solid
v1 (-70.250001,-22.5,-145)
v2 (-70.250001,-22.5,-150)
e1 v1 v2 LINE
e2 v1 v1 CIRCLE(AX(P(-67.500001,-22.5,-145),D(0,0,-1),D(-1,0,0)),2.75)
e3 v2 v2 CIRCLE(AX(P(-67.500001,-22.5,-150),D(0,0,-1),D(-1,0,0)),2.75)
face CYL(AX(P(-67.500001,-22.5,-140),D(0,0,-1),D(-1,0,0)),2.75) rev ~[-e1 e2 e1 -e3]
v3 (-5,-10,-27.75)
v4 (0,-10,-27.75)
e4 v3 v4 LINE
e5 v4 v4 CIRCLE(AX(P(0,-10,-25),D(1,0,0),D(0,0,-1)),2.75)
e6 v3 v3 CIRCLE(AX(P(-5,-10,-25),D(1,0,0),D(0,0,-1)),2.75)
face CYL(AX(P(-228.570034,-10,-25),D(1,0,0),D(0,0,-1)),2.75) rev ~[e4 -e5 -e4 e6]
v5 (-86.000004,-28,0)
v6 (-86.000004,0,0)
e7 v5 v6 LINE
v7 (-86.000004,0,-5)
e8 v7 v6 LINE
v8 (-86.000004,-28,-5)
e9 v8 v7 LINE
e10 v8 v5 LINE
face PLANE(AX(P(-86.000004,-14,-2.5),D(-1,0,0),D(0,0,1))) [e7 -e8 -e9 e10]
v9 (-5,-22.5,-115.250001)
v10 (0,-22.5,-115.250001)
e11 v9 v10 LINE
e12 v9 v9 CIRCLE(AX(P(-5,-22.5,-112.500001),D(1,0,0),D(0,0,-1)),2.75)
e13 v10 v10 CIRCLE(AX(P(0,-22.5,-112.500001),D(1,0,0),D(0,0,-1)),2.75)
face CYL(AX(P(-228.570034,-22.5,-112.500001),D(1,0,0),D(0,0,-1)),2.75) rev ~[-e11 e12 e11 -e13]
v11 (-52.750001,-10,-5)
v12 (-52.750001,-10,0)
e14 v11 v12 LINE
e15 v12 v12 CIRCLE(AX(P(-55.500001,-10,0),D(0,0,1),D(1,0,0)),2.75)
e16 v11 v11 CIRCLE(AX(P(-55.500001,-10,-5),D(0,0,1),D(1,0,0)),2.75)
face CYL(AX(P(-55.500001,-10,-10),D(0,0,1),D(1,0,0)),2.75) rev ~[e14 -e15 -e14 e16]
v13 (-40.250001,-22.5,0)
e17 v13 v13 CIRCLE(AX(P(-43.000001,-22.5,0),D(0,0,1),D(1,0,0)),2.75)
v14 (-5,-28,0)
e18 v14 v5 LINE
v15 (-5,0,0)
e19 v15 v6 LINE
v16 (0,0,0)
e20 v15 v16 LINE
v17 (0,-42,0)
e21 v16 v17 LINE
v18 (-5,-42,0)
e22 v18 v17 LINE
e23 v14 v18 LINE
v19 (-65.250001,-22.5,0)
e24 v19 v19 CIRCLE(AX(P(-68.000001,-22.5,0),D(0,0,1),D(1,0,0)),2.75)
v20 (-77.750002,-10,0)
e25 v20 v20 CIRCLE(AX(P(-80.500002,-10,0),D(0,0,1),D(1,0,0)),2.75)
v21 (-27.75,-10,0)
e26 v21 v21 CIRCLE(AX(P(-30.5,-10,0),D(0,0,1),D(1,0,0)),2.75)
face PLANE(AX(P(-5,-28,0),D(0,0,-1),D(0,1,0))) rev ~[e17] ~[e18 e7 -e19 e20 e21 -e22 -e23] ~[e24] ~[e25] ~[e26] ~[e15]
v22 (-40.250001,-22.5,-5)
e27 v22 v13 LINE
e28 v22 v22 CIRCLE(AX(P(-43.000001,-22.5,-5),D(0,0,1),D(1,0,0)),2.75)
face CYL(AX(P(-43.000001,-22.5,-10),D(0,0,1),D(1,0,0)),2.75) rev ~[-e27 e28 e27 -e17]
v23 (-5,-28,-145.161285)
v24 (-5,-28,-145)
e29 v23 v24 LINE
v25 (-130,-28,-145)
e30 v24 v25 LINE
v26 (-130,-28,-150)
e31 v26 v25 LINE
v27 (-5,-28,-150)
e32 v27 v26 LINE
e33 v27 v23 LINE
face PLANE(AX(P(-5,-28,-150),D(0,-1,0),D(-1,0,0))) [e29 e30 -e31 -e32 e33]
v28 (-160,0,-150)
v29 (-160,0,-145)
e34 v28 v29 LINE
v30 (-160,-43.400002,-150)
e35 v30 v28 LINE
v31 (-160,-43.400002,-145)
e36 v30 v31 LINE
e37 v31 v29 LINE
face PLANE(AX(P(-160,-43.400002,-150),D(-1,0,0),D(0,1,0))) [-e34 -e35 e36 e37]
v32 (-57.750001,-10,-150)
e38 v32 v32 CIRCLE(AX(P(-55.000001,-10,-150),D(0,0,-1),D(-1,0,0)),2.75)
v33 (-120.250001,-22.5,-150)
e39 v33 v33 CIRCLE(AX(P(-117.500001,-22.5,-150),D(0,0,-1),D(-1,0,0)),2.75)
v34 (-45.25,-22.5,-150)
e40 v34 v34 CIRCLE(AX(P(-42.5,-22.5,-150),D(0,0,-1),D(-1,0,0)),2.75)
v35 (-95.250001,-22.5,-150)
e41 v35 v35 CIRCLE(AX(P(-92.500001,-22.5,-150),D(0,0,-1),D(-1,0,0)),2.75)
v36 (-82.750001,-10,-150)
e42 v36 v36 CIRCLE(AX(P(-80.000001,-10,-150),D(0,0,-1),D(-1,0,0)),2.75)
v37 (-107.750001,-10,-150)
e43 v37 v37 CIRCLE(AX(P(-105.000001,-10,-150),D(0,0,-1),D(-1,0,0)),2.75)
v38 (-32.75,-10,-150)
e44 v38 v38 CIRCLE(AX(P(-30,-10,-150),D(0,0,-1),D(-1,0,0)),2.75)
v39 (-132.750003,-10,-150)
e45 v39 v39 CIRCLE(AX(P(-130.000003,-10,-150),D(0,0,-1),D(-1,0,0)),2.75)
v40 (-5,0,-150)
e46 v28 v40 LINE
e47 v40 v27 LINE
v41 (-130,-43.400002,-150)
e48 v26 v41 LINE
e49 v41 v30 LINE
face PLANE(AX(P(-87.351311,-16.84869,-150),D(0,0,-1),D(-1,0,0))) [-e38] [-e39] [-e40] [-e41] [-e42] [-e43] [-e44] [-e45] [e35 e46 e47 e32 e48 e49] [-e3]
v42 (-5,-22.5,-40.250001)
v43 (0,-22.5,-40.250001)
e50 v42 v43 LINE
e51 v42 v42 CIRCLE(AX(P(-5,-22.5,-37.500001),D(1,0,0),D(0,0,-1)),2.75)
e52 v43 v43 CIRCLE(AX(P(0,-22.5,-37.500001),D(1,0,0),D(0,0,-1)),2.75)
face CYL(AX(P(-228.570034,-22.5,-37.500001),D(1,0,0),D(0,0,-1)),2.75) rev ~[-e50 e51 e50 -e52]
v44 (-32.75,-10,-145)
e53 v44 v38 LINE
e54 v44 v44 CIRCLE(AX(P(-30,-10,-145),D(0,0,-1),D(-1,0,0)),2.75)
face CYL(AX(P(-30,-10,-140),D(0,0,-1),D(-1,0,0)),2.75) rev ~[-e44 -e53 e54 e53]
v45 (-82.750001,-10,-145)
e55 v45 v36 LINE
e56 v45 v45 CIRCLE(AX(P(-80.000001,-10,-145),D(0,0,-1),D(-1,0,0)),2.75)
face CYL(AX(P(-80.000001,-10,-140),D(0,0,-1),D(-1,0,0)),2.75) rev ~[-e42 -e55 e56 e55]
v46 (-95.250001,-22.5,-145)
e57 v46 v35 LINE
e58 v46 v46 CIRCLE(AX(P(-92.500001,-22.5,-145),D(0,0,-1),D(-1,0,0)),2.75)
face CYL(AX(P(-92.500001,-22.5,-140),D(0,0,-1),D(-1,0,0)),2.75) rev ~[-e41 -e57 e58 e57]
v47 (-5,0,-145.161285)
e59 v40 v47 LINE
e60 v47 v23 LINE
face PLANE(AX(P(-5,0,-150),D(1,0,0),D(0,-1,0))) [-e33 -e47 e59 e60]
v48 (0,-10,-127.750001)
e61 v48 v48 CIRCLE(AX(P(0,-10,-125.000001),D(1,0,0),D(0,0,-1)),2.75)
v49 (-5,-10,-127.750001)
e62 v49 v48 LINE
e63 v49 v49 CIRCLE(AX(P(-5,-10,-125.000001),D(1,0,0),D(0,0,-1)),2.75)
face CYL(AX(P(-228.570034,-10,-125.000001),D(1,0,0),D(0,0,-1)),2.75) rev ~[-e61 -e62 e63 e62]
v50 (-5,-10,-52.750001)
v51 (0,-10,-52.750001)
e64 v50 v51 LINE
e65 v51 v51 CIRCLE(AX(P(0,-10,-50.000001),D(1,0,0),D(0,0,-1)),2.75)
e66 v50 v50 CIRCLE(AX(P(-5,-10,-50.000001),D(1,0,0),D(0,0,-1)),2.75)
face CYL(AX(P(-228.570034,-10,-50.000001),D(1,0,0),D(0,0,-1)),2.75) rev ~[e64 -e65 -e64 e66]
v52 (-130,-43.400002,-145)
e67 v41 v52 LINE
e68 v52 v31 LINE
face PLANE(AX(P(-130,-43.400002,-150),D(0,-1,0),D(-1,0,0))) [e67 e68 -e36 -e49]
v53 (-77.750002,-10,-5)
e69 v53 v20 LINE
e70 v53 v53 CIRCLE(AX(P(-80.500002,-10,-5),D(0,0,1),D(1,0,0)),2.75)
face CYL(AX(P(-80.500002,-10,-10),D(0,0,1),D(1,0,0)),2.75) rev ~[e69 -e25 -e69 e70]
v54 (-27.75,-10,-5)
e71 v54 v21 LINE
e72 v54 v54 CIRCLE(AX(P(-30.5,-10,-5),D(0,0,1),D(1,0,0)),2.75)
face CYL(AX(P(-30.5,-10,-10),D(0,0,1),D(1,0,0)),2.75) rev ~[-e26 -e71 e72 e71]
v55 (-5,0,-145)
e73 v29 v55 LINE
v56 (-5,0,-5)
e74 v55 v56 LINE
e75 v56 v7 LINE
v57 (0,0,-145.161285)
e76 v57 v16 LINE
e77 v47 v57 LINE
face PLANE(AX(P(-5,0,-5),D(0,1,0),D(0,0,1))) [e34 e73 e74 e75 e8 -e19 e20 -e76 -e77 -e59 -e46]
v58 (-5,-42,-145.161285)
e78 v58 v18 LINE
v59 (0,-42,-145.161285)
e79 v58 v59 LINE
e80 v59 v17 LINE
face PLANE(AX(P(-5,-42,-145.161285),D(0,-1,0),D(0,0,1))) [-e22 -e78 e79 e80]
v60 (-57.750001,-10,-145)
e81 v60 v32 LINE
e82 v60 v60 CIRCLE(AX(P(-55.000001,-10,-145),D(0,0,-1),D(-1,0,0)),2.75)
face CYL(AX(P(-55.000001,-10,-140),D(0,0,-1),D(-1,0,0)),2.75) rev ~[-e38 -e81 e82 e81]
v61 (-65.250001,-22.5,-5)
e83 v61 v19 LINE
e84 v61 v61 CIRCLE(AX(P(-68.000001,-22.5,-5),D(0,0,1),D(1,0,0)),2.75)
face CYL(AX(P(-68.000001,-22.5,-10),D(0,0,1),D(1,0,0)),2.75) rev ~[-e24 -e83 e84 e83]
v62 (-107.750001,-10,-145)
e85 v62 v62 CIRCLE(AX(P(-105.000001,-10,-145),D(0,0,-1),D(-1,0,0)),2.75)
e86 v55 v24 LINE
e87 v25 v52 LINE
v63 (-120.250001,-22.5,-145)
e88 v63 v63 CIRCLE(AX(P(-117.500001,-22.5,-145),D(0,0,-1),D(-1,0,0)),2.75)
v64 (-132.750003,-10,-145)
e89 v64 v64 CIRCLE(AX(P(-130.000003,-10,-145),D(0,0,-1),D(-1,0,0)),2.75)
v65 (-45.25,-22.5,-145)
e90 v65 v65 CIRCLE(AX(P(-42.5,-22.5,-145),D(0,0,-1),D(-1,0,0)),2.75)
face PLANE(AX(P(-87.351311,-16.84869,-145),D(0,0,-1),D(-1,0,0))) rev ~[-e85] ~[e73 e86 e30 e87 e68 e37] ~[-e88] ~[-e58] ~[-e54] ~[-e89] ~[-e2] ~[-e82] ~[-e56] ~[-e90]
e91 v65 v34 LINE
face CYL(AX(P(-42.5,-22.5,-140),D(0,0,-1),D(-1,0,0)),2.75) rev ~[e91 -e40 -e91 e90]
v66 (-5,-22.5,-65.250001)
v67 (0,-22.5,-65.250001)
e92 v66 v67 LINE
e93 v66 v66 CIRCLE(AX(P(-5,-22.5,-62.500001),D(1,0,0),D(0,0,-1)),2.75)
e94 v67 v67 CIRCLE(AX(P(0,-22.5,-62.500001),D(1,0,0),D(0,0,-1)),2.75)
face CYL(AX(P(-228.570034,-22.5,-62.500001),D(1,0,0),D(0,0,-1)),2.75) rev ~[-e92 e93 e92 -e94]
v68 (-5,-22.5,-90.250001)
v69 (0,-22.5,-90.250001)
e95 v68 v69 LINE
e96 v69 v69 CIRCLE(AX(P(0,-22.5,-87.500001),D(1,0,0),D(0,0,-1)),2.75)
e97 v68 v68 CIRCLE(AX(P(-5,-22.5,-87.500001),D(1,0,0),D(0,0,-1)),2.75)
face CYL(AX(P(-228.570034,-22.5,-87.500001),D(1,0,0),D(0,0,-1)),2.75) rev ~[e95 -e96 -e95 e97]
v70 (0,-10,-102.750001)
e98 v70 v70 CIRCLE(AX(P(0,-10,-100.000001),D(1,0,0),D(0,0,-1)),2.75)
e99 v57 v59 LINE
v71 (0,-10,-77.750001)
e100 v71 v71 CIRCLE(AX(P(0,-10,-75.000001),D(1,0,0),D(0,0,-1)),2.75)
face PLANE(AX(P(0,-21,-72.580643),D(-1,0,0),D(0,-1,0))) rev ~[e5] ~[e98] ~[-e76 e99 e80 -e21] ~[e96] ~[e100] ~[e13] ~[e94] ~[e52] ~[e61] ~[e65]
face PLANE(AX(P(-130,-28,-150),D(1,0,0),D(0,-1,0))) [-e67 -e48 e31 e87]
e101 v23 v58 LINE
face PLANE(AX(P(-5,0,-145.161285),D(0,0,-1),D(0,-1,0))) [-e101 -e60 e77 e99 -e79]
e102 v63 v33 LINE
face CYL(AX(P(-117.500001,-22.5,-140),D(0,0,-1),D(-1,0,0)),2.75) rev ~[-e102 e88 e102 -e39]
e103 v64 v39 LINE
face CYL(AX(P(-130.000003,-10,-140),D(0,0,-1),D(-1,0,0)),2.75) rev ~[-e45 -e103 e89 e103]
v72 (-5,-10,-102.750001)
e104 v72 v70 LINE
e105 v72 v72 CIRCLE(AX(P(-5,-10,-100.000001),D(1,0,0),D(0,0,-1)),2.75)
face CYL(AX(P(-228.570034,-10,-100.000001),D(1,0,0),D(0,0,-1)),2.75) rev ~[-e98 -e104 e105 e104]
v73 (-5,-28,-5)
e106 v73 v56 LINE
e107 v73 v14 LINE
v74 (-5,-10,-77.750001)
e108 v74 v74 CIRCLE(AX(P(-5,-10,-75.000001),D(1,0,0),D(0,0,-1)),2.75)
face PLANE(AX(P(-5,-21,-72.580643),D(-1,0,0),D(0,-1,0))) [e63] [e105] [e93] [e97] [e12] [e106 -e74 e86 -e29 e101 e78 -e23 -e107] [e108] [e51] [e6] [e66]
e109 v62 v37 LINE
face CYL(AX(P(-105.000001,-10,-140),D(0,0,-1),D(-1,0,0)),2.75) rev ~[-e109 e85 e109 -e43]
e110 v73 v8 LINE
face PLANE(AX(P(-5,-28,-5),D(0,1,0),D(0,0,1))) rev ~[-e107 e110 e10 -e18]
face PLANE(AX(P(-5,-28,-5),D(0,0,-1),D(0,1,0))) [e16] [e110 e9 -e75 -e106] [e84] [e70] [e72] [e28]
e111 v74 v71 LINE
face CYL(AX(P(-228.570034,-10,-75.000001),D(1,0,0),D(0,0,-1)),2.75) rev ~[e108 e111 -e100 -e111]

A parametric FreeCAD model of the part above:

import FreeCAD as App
import Part
import Sketcher

V = App.Vector


def add_polygon(sketch, points):
    """Adds a closed chain of lines whose ends are joined by coincident constraints."""
    first, n = sketch.GeometryCount, len(points)
    for a, b in zip(points, points[1:] + points[:1]):
        sketch.addGeometry(Part.LineSegment(App.Vector(*a, 0), App.Vector(*b, 0)), False)
    for i in range(n):
        sketch.addConstraint(Sketcher.Constraint("Coincident", first + i, 2, first + (i + 1) % n, 1))

doc = App.newDocument("Part")
body = doc.addObject("PartDesign::Body", "Body")

# Sketch on YZ plane
sketch1 = body.newObject("Sketcher::SketchObject", "Sketch")
sketch1.AttachmentSupport = (doc.getObject("YZ_Plane"), [""])
sketch1.MapMode = "FlatFace"
sketch1.AttachmentOffset = App.Placement(V(0, 0, -5), App.Rotation())
add_polygon(sketch1, [(0, 0), (0, -145), (-42, -145), (-42, 0)])  # lines 0-3
sketch1.addConstraint([
    Sketcher.Constraint("Vertical", 0),
    Sketcher.Constraint("Horizontal", 1),
    Sketcher.Constraint("Vertical", 2),
    Sketcher.Constraint("Horizontal", 3),
    Sketcher.Constraint("Coincident", 3, 2, -1, 1),
    Sketcher.Constraint("DistanceX", 1, 2, 1, 1, 42.0),
    Sketcher.Constraint("DistanceY", 0, 2, 0, 1, 145.161285),
])
pad1 = body.newObject("PartDesign::Pad", "Pad")
pad1.Profile = sketch1
pad1.Length = 5

# Sketch on XY plane
sketch2 = body.newObject("Sketcher::SketchObject", "Sketch001")
sketch2.AttachmentSupport = (doc.getObject("XY_Plane"), [""])
sketch2.MapMode = "FlatFace"
sketch2.AttachmentOffset = App.Placement(V(0, 0, -150), App.Rotation())
add_polygon(sketch2, [(-130, -43), (-160, -43), (-160, 0), (-5, 0), (-5, -28), (-130, -28)])  # lines 0-5
sketch2.addConstraint([
    Sketcher.Constraint("Horizontal", 0),
    Sketcher.Constraint("Vertical", 1),
    Sketcher.Constraint("Horizontal", 2),
    Sketcher.Constraint("Vertical", 3),
    Sketcher.Constraint("Horizontal", 4),
    Sketcher.Constraint("Vertical", 5),
    Sketcher.Constraint("PointOnObject", 1, 2, -1),
    Sketcher.Constraint("DistanceX", 0, 2, 0, 1, 30.0),
    Sketcher.Constraint("DistanceX", 2, 1, 2, 2, 155.0),
    Sketcher.Constraint("DistanceY", 3, 2, 3, 1, 28.0),
    Sketcher.Constraint("DistanceY", 1, 1, 1, 2, 43.400002),
    Sketcher.Constraint("DistanceX", 0, 2, -1, 1, 160.0),
])
pad2 = body.newObject("PartDesign::Pad", "Pad001")
pad2.Profile = sketch2
pad2.Length = 5

# Sketch on YZ plane
sketch3 = body.newObject("Sketcher::SketchObject", "Sketch002")
sketch3.AttachmentSupport = (doc.getObject("YZ_Plane"), [""])
sketch3.MapMode = "FlatFace"
sketch3.AttachmentOffset = App.Placement(V(0, 0, -5), App.Rotation())
add_polygon(sketch3, [(0, -5), (-28, -5), (-28, 0), (0, 0)])  # lines 0-3
sketch3.addConstraint([
    Sketcher.Constraint("Horizontal", 0),
    Sketcher.Constraint("Vertical", 1),
    Sketcher.Constraint("Horizontal", 2),
    Sketcher.Constraint("Vertical", 3),
    Sketcher.Constraint("Coincident", 2, 2, -1, 1),
    Sketcher.Constraint("DistanceX", 0, 2, 0, 1, 28.0),
    Sketcher.Constraint("DistanceY", 1, 1, 1, 2, 5.0),
])
pad3 = body.newObject("PartDesign::Pad", "Pad002")
pad3.Profile = sketch3
pad3.Length = 81.000004
pad3.Reversed = True

# Sketch on YZ plane
sketch4 = body.newObject("Sketcher::SketchObject", "Sketch003")
sketch4.AttachmentSupport = (doc.getObject("YZ_Plane"), [""])
sketch4.MapMode = "FlatFace"
sketch4.AttachmentOffset = App.Placement(V(0, 0, -5), App.Rotation())
sketch4.addGeometry([
    Part.Circle(V(-22.5, -37.5, 0), V(0, 0, 1), 2.8),  # 0
    Part.Circle(V(-10, -25, 0), V(0, 0, 1), 2.8),  # 1
    Part.Circle(V(-10, -50, 0), V(0, 0, 1), 2.8),  # 2
    Part.Circle(V(-22.5, -62.5, 0), V(0, 0, 1), 2.8),  # 3
    Part.Circle(V(-10, -75, 0), V(0, 0, 1), 2.8),  # 4
    Part.Circle(V(-22.5, -87.5, 0), V(0, 0, 1), 2.8),  # 5
    Part.Circle(V(-22.5, -112.5, 0), V(0, 0, 1), 2.8),  # 6
    Part.Circle(V(-10, -100, 0), V(0, 0, 1), 2.8),  # 7
    Part.Circle(V(-10, -125, 0), V(0, 0, 1), 2.8),  # 8
], False)
sketch4.addConstraint([
    Sketcher.Constraint("Equal", 0, 1),
    Sketcher.Constraint("Equal", 1, 2),
    Sketcher.Constraint("Equal", 2, 3),
    Sketcher.Constraint("Equal", 3, 4),
    Sketcher.Constraint("Equal", 4, 5),
    Sketcher.Constraint("Equal", 5, 6),
    Sketcher.Constraint("Equal", 6, 7),
    Sketcher.Constraint("Equal", 7, 8),
    Sketcher.Constraint("Vertical", 1, 3, 2, 3),
    Sketcher.Constraint("Vertical", 0, 3, 3, 3),
    Sketcher.Constraint("Vertical", 2, 3, 4, 3),
    Sketcher.Constraint("Vertical", 3, 3, 5, 3),
    Sketcher.Constraint("Vertical", 5, 3, 6, 3),
    Sketcher.Constraint("Vertical", 4, 3, 7, 3),
    Sketcher.Constraint("Vertical", 7, 3, 8, 3),
    Sketcher.Constraint("Diameter", 0, 5.5),
    Sketcher.Constraint("DistanceX", 1, 3, -1, 1, 10.0),
    Sketcher.Constraint("DistanceY", 1, 3, -1, 1, 25.0),
    Sketcher.Constraint("DistanceY", 2, 3, -1, 1, 50.000001),
    Sketcher.Constraint("DistanceY", 4, 3, -1, 1, 75.000001),
    Sketcher.Constraint("DistanceY", 7, 3, -1, 1, 100.000001),
    Sketcher.Constraint("DistanceY", 8, 3, -1, 1, 125.000001),
    Sketcher.Constraint("DistanceY", 3, 3, 0, 3, 25.0),
    Sketcher.Constraint("DistanceY", 5, 3, 3, 3, 25.0),
    Sketcher.Constraint("DistanceY", 6, 3, 5, 3, 25.0),
    Sketcher.Constraint("DistanceX", 0, 3, -1, 1, 22.5),
    Sketcher.Constraint("DistanceY", 0, 3, -1, 1, 37.500001),
])
doc.recompute()
hole = body.newObject("PartDesign::Hole", "Hole")
hole.Profile = sketch4
hole.ThreadType = "None"
hole.Diameter = 5.5
hole.DepthType = "ThroughAll"
hole.Reversed = True

# Sketch on XY plane
sketch5 = body.newObject("Sketcher::SketchObject", "Sketch004")
sketch5.AttachmentSupport = (doc.getObject("XY_Plane"), [""])
sketch5.MapMode = "FlatFace"
sketch5.AttachmentOffset = App.Placement(V(0, 0, -145), App.Rotation())
sketch5.addGeometry([
    Part.Circle(V(-30, -10, 0), V(0, 0, 1), 2.8),  # 0
    Part.Circle(V(-42.5, -22.5, 0), V(0, 0, 1), 2.8),  # 1
    Part.Circle(V(-67.5, -22.5, 0), V(0, 0, 1), 2.8),  # 2
    Part.Circle(V(-55, -10, 0), V(0, 0, 1), 2.8),  # 3
    Part.Circle(V(-80, -10, 0), V(0, 0, 1), 2.8),  # 4
    Part.Circle(V(-92.5, -22.5, 0), V(0, 0, 1), 2.8),  # 5
    Part.Circle(V(-117.5, -22.5, 0), V(0, 0, 1), 2.8),  # 6
    Part.Circle(V(-105, -10, 0), V(0, 0, 1), 2.8),  # 7
    Part.Circle(V(-130, -10, 0), V(0, 0, 1), 2.8),  # 8
], False)
sketch5.addConstraint([
    Sketcher.Constraint("Equal", 0, 1),
    Sketcher.Constraint("Equal", 1, 2),
    Sketcher.Constraint("Equal", 2, 3),
    Sketcher.Constraint("Equal", 3, 4),
    Sketcher.Constraint("Equal", 4, 5),
    Sketcher.Constraint("Equal", 5, 6),
    Sketcher.Constraint("Equal", 6, 7),
    Sketcher.Constraint("Equal", 7, 8),
    Sketcher.Constraint("Horizontal", 1, 3, 2, 3),
    Sketcher.Constraint("Horizontal", 0, 3, 3, 3),
    Sketcher.Constraint("Horizontal", 3, 3, 4, 3),
    Sketcher.Constraint("Horizontal", 2, 3, 5, 3),
    Sketcher.Constraint("Horizontal", 5, 3, 6, 3),
    Sketcher.Constraint("Horizontal", 4, 3, 7, 3),
    Sketcher.Constraint("Horizontal", 7, 3, 8, 3),
    Sketcher.Constraint("Diameter", 0, 5.5),
    Sketcher.Constraint("DistanceX", 0, 3, -1, 1, 30.0),
    Sketcher.Constraint("DistanceY", 0, 3, -1, 1, 10.0),
    Sketcher.Constraint("DistanceX", 3, 3, -1, 1, 55.000001),
    Sketcher.Constraint("DistanceX", 4, 3, -1, 1, 80.000001),
    Sketcher.Constraint("DistanceX", 7, 3, -1, 1, 105.000001),
    Sketcher.Constraint("DistanceX", 2, 3, 1, 3, 25.0),
    Sketcher.Constraint("DistanceX", 5, 3, 2, 3, 25.0),
    Sketcher.Constraint("DistanceX", 6, 3, 5, 3, 25.0),
    Sketcher.Constraint("DistanceX", 8, 3, 4, 3, 50.000002),
    Sketcher.Constraint("DistanceX", 1, 3, -1, 1, 42.5),
    Sketcher.Constraint("DistanceY", 1, 3, -1, 1, 22.5),
])
doc.recompute()
hole2 = body.newObject("PartDesign::Hole", "Hole001")
hole2.Profile = sketch5
hole2.ThreadType = "None"
hole2.Diameter = 5.5
hole2.DepthType = "Dimension"
hole2.Depth = 5
hole2.DrillPoint = "Flat"

# Sketch on XY plane
sketch6 = body.newObject("Sketcher::SketchObject", "Sketch005")
sketch6.AttachmentSupport = (doc.getObject("XY_Plane"), [""])
sketch6.MapMode = "FlatFace"
sketch6.AttachmentOffset = App.Placement(V(0, 0, -5), App.Rotation())
sketch6.addGeometry([
    Part.Circle(V(-80.5, -10, 0), V(0, 0, 1), 2.8),  # 0
    Part.Circle(V(-68, -22.5, 0), V(0, 0, 1), 2.8),  # 1
    Part.Circle(V(-43, -22.5, 0), V(0, 0, 1), 2.8),  # 2
    Part.Circle(V(-55.5, -10, 0), V(0, 0, 1), 2.8),  # 3
    Part.Circle(V(-30.5, -10, 0), V(0, 0, 1), 2.8),  # 4
], False)
sketch6.addConstraint([
    Sketcher.Constraint("Equal", 0, 1),
    Sketcher.Constraint("Equal", 1, 2),
    Sketcher.Constraint("Equal", 2, 3),
    Sketcher.Constraint("Equal", 3, 4),
    Sketcher.Constraint("Horizontal", 1, 3, 2, 3),
    Sketcher.Constraint("Horizontal", 0, 3, 3, 3),
    Sketcher.Constraint("Horizontal", 3, 3, 4, 3),
    Sketcher.Constraint("Diameter", 0, 5.5),
    Sketcher.Constraint("DistanceY", 0, 3, -1, 1, 10.0),
    Sketcher.Constraint("DistanceX", 1, 3, -1, 1, 68.000001),
    Sketcher.Constraint("DistanceX", 2, 3, -1, 1, 43.000001),
    Sketcher.Constraint("DistanceX", 0, 3, 3, 3, 25.0),
    Sketcher.Constraint("DistanceX", 3, 3, 4, 3, 25.000001),
    Sketcher.Constraint("DistanceX", 0, 3, -1, 1, 80.500002),
    Sketcher.Constraint("DistanceY", 1, 3, -1, 1, 22.5),
])
doc.recompute()
hole3 = body.newObject("PartDesign::Hole", "Hole002")
hole3.Profile = sketch6
hole3.ThreadType = "None"
hole3.Diameter = 5.5
hole3.DepthType = "Dimension"
hole3.Depth = 5
hole3.DrillPoint = "Flat"
hole3.Reversed = True

doc.recompute()
